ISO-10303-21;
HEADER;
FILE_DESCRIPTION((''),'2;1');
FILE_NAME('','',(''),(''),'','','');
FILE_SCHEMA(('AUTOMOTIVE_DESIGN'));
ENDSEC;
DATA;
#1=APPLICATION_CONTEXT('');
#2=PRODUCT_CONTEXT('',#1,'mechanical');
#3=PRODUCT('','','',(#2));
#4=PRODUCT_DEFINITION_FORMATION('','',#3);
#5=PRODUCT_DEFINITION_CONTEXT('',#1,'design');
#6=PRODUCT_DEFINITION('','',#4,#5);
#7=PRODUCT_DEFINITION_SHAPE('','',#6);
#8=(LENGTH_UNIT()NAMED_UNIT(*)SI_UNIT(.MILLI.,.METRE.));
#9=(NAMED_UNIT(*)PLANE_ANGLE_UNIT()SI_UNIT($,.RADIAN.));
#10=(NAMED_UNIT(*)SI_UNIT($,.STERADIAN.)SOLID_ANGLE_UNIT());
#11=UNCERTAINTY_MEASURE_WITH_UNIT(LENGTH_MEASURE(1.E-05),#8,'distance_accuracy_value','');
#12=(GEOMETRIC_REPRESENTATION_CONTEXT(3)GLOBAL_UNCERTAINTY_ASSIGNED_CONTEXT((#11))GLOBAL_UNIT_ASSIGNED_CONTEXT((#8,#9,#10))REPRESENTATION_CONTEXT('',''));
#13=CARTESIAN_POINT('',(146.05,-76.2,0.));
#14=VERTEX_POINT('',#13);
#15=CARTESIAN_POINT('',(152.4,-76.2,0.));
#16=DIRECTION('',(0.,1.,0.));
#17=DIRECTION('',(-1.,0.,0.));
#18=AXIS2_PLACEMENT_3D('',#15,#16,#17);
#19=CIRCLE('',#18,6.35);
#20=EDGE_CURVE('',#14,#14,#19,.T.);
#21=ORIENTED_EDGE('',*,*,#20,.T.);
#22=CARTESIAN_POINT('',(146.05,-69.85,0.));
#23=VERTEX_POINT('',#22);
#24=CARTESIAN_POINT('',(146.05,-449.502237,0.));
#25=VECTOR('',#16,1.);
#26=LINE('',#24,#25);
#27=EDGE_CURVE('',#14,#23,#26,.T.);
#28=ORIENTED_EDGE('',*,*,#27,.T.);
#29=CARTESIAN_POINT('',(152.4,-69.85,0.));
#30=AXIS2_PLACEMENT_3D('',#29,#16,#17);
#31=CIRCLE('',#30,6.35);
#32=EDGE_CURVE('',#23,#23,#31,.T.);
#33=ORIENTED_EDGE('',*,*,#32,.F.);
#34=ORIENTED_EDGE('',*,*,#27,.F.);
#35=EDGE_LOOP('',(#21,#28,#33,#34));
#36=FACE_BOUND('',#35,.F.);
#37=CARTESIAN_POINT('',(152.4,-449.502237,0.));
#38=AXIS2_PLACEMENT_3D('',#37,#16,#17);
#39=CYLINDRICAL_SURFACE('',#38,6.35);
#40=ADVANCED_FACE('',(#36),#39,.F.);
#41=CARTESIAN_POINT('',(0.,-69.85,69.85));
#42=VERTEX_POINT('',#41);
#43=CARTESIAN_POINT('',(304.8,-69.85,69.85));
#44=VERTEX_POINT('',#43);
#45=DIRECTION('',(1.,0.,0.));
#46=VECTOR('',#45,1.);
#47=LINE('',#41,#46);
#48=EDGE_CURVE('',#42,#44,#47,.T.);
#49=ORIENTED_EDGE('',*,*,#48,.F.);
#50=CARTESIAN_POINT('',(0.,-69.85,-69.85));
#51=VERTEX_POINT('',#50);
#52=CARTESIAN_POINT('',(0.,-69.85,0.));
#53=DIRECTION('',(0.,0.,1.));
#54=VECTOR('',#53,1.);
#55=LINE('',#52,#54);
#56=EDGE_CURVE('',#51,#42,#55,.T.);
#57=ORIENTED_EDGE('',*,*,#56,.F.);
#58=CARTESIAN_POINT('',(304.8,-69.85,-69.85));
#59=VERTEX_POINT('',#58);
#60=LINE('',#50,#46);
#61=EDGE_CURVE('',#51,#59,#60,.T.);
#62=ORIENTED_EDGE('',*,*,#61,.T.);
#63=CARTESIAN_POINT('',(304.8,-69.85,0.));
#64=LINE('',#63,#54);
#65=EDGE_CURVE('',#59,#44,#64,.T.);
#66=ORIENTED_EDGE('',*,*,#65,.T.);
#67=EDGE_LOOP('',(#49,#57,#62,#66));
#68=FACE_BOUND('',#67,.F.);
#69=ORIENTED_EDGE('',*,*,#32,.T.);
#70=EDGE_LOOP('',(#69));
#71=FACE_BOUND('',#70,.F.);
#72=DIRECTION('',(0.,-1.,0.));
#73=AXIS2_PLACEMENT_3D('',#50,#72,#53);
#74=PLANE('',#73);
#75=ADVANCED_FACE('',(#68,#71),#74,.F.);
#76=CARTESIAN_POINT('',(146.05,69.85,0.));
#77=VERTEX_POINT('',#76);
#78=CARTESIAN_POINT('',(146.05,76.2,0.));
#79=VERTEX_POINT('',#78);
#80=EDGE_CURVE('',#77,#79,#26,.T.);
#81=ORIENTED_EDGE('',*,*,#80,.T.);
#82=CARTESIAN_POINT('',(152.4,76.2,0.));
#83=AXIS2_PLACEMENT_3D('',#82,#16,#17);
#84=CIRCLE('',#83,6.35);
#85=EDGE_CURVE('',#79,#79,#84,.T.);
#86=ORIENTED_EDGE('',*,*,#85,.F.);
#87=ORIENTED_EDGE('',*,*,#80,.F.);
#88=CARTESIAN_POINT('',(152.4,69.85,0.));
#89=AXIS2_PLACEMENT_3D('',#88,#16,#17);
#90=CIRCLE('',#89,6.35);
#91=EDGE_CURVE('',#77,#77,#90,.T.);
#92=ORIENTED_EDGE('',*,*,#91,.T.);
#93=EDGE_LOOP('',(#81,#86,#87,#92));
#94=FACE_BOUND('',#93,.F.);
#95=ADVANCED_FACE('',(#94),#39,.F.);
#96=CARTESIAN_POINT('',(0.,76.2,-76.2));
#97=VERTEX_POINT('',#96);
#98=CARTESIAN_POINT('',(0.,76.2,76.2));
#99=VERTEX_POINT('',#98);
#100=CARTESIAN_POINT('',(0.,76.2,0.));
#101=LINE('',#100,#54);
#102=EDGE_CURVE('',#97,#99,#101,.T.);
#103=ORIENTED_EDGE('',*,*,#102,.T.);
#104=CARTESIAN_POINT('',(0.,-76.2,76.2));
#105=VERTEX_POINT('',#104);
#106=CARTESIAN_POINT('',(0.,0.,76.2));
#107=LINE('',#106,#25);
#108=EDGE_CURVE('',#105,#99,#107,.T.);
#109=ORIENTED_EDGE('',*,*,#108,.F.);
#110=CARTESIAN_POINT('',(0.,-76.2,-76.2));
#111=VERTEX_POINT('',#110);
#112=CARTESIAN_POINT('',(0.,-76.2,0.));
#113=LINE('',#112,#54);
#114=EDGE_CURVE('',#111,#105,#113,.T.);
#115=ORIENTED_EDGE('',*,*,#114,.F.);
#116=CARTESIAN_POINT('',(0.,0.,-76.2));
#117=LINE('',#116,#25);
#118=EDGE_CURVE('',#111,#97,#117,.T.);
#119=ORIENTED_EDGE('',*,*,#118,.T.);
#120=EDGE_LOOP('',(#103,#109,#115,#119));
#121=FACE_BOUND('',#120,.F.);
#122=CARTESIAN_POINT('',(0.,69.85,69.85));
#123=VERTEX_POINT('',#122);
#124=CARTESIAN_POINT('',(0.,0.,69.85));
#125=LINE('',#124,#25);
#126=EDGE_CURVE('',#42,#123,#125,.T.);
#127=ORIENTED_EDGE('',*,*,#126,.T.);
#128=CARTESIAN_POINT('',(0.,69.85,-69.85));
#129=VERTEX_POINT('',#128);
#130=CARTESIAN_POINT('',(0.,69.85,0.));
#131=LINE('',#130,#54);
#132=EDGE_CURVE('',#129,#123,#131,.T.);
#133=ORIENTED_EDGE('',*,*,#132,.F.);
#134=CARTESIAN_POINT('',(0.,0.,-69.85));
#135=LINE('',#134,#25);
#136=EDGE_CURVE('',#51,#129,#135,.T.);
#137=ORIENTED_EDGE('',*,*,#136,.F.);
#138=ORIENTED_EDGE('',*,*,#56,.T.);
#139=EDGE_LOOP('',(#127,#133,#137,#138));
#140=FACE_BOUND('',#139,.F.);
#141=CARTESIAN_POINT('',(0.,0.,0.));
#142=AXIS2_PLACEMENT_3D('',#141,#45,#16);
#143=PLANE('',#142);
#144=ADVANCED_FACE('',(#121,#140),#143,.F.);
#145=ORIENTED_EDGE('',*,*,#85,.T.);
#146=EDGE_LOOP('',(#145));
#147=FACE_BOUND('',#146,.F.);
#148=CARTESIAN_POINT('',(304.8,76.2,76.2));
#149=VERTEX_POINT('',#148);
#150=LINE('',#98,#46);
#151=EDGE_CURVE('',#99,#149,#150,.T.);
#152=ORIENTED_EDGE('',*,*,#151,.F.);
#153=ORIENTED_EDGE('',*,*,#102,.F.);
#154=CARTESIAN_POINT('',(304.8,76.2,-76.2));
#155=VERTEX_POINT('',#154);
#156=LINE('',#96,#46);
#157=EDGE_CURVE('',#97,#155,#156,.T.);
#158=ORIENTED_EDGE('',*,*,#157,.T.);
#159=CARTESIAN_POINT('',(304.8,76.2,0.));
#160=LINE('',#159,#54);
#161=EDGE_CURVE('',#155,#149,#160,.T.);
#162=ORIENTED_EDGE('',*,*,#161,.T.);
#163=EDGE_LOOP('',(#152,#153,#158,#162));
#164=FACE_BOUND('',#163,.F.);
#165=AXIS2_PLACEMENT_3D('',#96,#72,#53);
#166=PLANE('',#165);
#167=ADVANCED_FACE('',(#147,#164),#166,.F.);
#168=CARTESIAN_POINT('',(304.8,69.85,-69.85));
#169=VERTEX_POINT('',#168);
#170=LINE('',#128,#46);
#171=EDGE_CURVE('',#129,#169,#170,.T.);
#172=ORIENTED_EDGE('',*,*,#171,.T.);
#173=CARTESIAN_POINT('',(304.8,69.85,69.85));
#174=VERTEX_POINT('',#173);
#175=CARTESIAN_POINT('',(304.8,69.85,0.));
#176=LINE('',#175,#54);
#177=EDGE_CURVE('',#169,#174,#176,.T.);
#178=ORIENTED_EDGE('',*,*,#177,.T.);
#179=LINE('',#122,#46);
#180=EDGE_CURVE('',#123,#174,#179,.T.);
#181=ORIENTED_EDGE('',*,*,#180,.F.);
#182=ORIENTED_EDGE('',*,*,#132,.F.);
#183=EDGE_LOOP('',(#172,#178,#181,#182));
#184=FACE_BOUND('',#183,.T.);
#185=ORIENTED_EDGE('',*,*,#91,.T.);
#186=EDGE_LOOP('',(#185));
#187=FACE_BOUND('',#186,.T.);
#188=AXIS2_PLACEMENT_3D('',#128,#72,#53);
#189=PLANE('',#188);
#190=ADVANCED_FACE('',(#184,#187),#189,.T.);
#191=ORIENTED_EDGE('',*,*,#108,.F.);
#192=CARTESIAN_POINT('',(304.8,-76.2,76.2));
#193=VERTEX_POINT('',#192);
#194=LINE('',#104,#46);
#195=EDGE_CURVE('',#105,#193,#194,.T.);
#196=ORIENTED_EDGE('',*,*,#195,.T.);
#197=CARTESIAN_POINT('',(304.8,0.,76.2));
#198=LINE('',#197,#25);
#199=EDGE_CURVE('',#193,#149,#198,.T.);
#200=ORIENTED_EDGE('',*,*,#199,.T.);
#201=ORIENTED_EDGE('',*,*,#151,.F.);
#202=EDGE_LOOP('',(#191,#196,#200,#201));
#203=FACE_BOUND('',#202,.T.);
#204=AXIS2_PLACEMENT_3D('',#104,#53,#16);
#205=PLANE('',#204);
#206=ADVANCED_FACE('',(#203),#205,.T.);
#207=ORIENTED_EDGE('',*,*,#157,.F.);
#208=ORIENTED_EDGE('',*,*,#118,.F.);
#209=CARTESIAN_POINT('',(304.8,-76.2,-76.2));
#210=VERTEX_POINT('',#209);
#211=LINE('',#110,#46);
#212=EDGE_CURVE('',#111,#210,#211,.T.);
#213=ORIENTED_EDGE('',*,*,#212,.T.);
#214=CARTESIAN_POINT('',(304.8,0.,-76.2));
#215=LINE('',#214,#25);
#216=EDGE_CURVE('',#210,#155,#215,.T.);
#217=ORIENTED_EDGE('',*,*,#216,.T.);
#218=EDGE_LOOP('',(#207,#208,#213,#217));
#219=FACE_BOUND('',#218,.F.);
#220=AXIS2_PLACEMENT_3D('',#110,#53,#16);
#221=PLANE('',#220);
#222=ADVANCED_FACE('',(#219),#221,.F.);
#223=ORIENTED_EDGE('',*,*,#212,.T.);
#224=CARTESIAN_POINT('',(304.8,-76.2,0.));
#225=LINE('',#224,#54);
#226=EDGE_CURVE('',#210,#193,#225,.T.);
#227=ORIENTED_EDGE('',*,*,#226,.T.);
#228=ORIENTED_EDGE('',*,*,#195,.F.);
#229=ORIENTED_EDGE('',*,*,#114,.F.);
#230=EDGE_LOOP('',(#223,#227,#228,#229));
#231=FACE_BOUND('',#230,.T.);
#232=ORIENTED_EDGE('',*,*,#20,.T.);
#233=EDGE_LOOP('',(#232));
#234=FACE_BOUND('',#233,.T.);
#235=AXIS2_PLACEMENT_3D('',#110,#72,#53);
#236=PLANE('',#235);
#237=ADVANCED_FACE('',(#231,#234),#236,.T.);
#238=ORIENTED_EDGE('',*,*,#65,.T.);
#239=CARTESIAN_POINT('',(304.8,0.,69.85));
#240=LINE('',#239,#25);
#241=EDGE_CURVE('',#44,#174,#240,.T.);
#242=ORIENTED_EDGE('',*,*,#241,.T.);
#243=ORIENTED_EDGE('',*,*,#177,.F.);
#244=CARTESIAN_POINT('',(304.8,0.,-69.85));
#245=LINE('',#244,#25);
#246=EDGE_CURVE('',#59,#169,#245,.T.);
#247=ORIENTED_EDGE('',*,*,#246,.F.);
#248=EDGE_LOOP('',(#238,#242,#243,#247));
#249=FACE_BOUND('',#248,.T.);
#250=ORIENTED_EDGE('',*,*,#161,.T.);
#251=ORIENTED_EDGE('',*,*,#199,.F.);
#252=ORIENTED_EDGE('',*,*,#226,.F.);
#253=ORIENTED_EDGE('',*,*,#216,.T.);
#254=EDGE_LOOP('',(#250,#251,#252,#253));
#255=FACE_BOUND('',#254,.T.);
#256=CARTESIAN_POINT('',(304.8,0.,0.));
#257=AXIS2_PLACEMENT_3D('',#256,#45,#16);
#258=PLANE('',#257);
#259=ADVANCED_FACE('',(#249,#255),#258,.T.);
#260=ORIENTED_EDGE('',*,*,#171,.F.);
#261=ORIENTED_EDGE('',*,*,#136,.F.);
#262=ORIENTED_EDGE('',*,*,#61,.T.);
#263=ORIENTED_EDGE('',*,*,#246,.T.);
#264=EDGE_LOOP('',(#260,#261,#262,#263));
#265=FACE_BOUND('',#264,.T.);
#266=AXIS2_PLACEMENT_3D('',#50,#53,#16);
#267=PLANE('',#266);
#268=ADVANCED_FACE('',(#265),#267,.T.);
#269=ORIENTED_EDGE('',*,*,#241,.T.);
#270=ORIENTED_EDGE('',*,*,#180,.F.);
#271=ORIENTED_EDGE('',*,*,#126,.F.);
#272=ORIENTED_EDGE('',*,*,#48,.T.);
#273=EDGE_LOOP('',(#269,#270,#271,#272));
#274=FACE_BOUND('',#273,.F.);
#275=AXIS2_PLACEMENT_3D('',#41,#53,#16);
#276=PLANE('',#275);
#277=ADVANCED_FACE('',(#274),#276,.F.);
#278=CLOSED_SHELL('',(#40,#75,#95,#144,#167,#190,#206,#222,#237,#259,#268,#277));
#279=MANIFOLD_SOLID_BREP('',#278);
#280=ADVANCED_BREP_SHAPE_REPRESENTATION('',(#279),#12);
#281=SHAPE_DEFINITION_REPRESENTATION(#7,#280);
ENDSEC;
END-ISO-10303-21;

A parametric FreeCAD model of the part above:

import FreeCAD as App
import Part
import Sketcher

V = App.Vector
Q = App.Units.Quantity

doc = App.newDocument("Part")
body = doc.addObject("PartDesign::Body", "Body")

# Sketch on YZ plane
sketch1 = doc.addObject("Sketcher::SketchObject", "Sketch")
body.addObject(sketch1)
sketch1.AttachmentSupport = (doc.YZ_Plane, [""])
sketch1.MapMode = "FlatFace"
sketch1.addGeometry([
    Part.LineSegment(V(-76, 76, 0), V(-76, -76, 0)),  # 0
    Part.LineSegment(V(-76, -76, 0), V(76, -76, 0)),  # 1
    Part.LineSegment(V(76, -76, 0), V(76, 76, 0)),  # 2
    Part.LineSegment(V(76, 76, 0), V(-76, 76, 0)),  # 3
    Part.LineSegment(V(70, -70, 0), V(-70, -70, 0)),  # 4
    Part.LineSegment(V(-70, -70, 0), V(-70, 70, 0)),  # 5
    Part.LineSegment(V(-70, 70, 0), V(70, 70, 0)),  # 6
    Part.LineSegment(V(70, 70, 0), V(70, -70, 0)),  # 7
], False)
sketch1.addConstraint([
    Sketcher.Constraint("Coincident", 0, 2, 1, 1),
    Sketcher.Constraint("Coincident", 1, 2, 2, 1),
    Sketcher.Constraint("Coincident", 2, 2, 3, 1),
    Sketcher.Constraint("Coincident", 3, 2, 0, 1),
    Sketcher.Constraint("Coincident", 4, 2, 5, 1),
    Sketcher.Constraint("Coincident", 5, 2, 6, 1),
    Sketcher.Constraint("Coincident", 6, 2, 7, 1),
    Sketcher.Constraint("Coincident", 7, 2, 4, 1),
    Sketcher.Constraint("Vertical", 0),
    Sketcher.Constraint("Horizontal", 1),
    Sketcher.Constraint("Vertical", 2),
    Sketcher.Constraint("Horizontal", 3),
    Sketcher.Constraint("Horizontal", 4),
    Sketcher.Constraint("Vertical", 5),
    Sketcher.Constraint("Horizontal", 6),
    Sketcher.Constraint("Vertical", 7),
    Sketcher.Constraint("Symmetric", 0, 2, 2, 2, -1, 1),
    Sketcher.Constraint("Symmetric", 4, 2, 6, 2, -1, 1),
    Sketcher.Constraint("Equal", 3, 0),
    Sketcher.Constraint("Equal", 6, 5),
    Sketcher.Constraint("DistanceX", 1, 1, 1, 2, Q("6 in")),
    Sketcher.Constraint("DistanceX", 4, 2, 4, 1, Q("5.5 in")),
])
pad1 = doc.addObject("PartDesign::Pad", "Pad")
body.addObject(pad1)
pad1.Profile = sketch1
pad1.Length = Q("12 in")

# Sketch on XZ plane
sketch2 = doc.addObject("Sketcher::SketchObject", "Sketch001")
body.addObject(sketch2)
sketch2.AttachmentSupport = (doc.XZ_Plane, [""])
sketch2.MapMode = "FlatFace"
sketch2.AttachmentOffset = App.Placement(V(0, 0, 3 * 25.4), App.Rotation())
sketch2.addGeometry(Part.Circle(V(152, 0, 0), V(0, 0, 1), 6), False)
sketch2.addConstraint([
    Sketcher.Constraint("PointOnObject", 0, 3, -1),
    Sketcher.Constraint("Diameter", 0, Q("0.5 in")),
    Sketcher.Constraint("DistanceX", -1, 1, 0, 3, Q("6 in")),
])
doc.recompute()
hole = doc.addObject("PartDesign::Hole", "Hole")
body.addObject(hole)
hole.Profile = sketch2
hole.ThreadType = "None"
hole.Diameter = Q("0.5 in")
hole.DepthType = "ThroughAll"

doc.recompute()
